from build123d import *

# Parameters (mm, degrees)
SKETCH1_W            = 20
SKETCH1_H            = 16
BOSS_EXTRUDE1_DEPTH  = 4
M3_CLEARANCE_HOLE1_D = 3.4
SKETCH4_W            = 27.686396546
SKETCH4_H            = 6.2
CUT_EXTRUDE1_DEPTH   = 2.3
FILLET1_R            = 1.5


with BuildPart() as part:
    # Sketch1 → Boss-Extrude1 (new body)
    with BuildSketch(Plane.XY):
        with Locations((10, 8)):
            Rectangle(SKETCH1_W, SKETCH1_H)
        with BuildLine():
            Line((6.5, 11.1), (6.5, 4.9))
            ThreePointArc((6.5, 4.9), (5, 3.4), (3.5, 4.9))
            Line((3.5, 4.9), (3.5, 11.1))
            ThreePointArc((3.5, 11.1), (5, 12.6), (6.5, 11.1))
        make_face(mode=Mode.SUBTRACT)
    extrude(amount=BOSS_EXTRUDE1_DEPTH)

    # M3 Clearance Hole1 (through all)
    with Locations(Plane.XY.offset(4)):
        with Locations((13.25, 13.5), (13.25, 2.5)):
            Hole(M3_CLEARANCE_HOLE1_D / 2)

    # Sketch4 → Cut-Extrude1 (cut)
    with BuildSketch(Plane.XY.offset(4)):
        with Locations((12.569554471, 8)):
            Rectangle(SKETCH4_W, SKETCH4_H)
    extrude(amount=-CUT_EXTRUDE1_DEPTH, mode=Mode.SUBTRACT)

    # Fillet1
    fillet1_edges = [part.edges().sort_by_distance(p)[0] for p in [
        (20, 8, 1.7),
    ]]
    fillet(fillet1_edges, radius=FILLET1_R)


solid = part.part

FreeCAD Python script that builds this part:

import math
import FreeCAD as App
import Part
import Sketcher
from FreeCAD import Vector
Q = App.Units.Quantity


def edges_at(feature, points):
    """Names of the edges that pass closest to the given points."""
    edges = feature.Shape.Edges
    near = lambda p: min(range(len(edges)), key=lambda i: edges[i].distToShape(Part.Vertex(*p))[0])
    return sorted({f"Edge{near(p) + 1}" for p in points})

doc = App.newDocument("Part")
params = doc.addObject("Spreadsheet::Sheet", "Params")
for row, (alias, value) in enumerate([
    ("sketch1_radius", "1.5 mm"),
    ("sketch1_width", "20 mm"),
    ("sketch1_height", "16 mm"),
    ("sketch1_height2", "6.2 mm"),
    ("pad1_length", "4 mm"),
    ("sketch2_diameter", "3.4 mm"),
    ("hole_diameter", "3.4 mm"),
    ("sketch3_height", "6.2 mm"),
    ("pocket1_length", "2.3 mm"),
    ("fillet_radius", "1.5 mm"),
], start=1):
    params.set(f"A{row}", alias)
    params.set(f"B{row}", "=" + value)
    params.setAlias(f"B{row}", alias)

body = doc.addObject("PartDesign::Body", "Body")

# Sketch on XY plane
sketch1 = body.newObject("Sketcher::SketchObject", "Sketch")
sketch1.AttachmentSupport = (doc.getObject("XY_Plane"), [""])
sketch1.MapMode = "FlatFace"
sketch1.addGeometry(Part.LineSegment(Vector(0, 16, 0), Vector(0, 0, 0)), False)
sketch1.addGeometry(Part.LineSegment(Vector(0, 0, 0), Vector(20, 0, 0)), False)
sketch1.addGeometry(Part.LineSegment(Vector(20, 0, 0), Vector(20, 16, 0)), False)
sketch1.addGeometry(Part.LineSegment(Vector(20, 16, 0), Vector(0, 16, 0)), False)
sketch1.addGeometry(Part.ArcOfCircle(Part.Circle(Vector(5, 11.1, 0), Vector(0, 0, 1), 1.5), math.radians(0), math.radians(180)), False)
sketch1.addGeometry(Part.LineSegment(Vector(6.5, 11.1, 0), Vector(6.5, 4.9, 0)), False)
sketch1.addGeometry(Part.ArcOfCircle(Part.Circle(Vector(5, 4.9, 0), Vector(0, 0, 1), 1.5), math.radians(180), math.radians(360)), False)
sketch1.addGeometry(Part.LineSegment(Vector(3.5, 4.9, 0), Vector(3.5, 11.1, 0)), False)
sketch1.addConstraint(Sketcher.Constraint("Coincident", 0, 2, 1, 1))
sketch1.addConstraint(Sketcher.Constraint("Coincident", 1, 2, 2, 1))
sketch1.addConstraint(Sketcher.Constraint("Coincident", 2, 2, 3, 1))
sketch1.addConstraint(Sketcher.Constraint("Coincident", 3, 2, 0, 1))
sketch1.addConstraint(Sketcher.Constraint("Tangent", 4, 1, 5, 1))
sketch1.addConstraint(Sketcher.Constraint("Tangent", 5, 2, 6, 2))
sketch1.addConstraint(Sketcher.Constraint("Tangent", 6, 1, 7, 1))
sketch1.addConstraint(Sketcher.Constraint("Tangent", 7, 2, 4, 2))
sketch1.addConstraint(Sketcher.Constraint("Vertical", 0))
sketch1.addConstraint(Sketcher.Constraint("Horizontal", 1))
sketch1.addConstraint(Sketcher.Constraint("Vertical", 2))
sketch1.addConstraint(Sketcher.Constraint("Horizontal", 3))
sketch1.addConstraint(Sketcher.Constraint("Vertical", 5))
sketch1.addConstraint(Sketcher.Constraint("Vertical", 7))
sketch1.addConstraint(Sketcher.Constraint("Coincident", 0, 2, -1, 1))
sketch1.addConstraint(Sketcher.Constraint("Radius", 4, Q("1.5 mm")))
sketch1.addConstraint(Sketcher.Constraint("DistanceX", 1, 1, 1, 2, Q("20 mm")))
sketch1.addConstraint(Sketcher.Constraint("DistanceY", 0, 2, 0, 1, Q("16 mm")))
sketch1.addConstraint(Sketcher.Constraint("DistanceY", 5, 2, 5, 1, Q("6.2 mm")))
sketch1.addConstraint(Sketcher.Constraint("DistanceX", -1, 1, 4, 3, Q("5 mm")))
sketch1.addConstraint(Sketcher.Constraint("DistanceY", -1, 1, 4, 3, Q("11.1 mm")))
sketch1.setExpression("Constraints[15]", "Params.sketch1_radius")
sketch1.setExpression("Constraints[16]", "Params.sketch1_width")
sketch1.setExpression("Constraints[17]", "Params.sketch1_height")
sketch1.setExpression("Constraints[18]", "Params.sketch1_height2")
pad1 = body.newObject("PartDesign::Pad", "Pad")
pad1.Profile = sketch1
pad1.setExpression("Length", "Params.pad1_length")

# Sketch on XY plane
sketch2 = body.newObject("Sketcher::SketchObject", "Sketch001")
sketch2.AttachmentSupport = (doc.getObject("XY_Plane"), [""])
sketch2.MapMode = "FlatFace"
sketch2.AttachmentOffset = App.Placement(Vector(0, 0, 4), App.Rotation())
sketch2.addGeometry(Part.Circle(Vector(13.2, 13.5, 0), Vector(0, 0, 1), 1.7), False)
sketch2.addGeometry(Part.Circle(Vector(13.2, 2.5, 0), Vector(0, 0, 1), 1.7), False)
sketch2.addConstraint(Sketcher.Constraint("Equal", 0, 1))
sketch2.addConstraint(Sketcher.Constraint("Vertical", 0, 3, 1, 3))
sketch2.addConstraint(Sketcher.Constraint("Diameter", 0, Q("3.4 mm")))
sketch2.addConstraint(Sketcher.Constraint("DistanceY", 1, 3, 0, 3, Q("11 mm")))
sketch2.addConstraint(Sketcher.Constraint("DistanceY", -1, 1, 0, 3, Q("13.5 mm")))
sketch2.addConstraint(Sketcher.Constraint("DistanceX", -1, 1, 0, 3, Q("13.25 mm")))
sketch2.setExpression("Constraints[2]", "Params.sketch2_diameter")
doc.recompute()
hole = body.newObject("PartDesign::Hole", "Hole")
hole.Profile = sketch2
hole.ThreadType = "None"
hole.setExpression("Diameter", "Params.hole_diameter")
hole.DepthType = "ThroughAll"

# Sketch on XY plane
sketch3 = body.newObject("Sketcher::SketchObject", "Sketch002")
sketch3.AttachmentSupport = (doc.getObject("XY_Plane"), [""])
sketch3.MapMode = "FlatFace"
sketch3.AttachmentOffset = App.Placement(Vector(0, 0, 4), App.Rotation())
sketch3.addGeometry(Part.LineSegment(Vector(-1, 11, 0), Vector(-1, 5, 0)), False)
sketch3.addGeometry(Part.LineSegment(Vector(-1, 5, 0), Vector(26, 5, 0)), False)
sketch3.addGeometry(Part.LineSegment(Vector(26, 5, 0), Vector(26, 11, 0)), False)
sketch3.addGeometry(Part.LineSegment(Vector(26, 11, 0), Vector(-1, 11, 0)), False)
sketch3.addConstraint(Sketcher.Constraint("Coincident", 0, 2, 1, 1))
sketch3.addConstraint(Sketcher.Constraint("Coincident", 1, 2, 2, 1))
sketch3.addConstraint(Sketcher.Constraint("Coincident", 2, 2, 3, 1))
sketch3.addConstraint(Sketcher.Constraint("Coincident", 3, 2, 0, 1))
sketch3.addConstraint(Sketcher.Constraint("Vertical", 0))
sketch3.addConstraint(Sketcher.Constraint("Horizontal", 1))
sketch3.addConstraint(Sketcher.Constraint("Vertical", 2))
sketch3.addConstraint(Sketcher.Constraint("Horizontal", 3))
sketch3.addConstraint(Sketcher.Constraint("DistanceY", 0, 2, 0, 1, Q("6.2 mm")))
sketch3.addConstraint(Sketcher.Constraint("DistanceY", -1, 1, 0, 2, Q("4.9 mm")))
sketch3.addConstraint(Sketcher.Constraint("DistanceX", 1, 1, 1, 2, Q("27.686397 mm")))
sketch3.addConstraint(Sketcher.Constraint("DistanceX", 0, 2, -1, 1, Q("1.273644 mm")))
sketch3.setExpression("Constraints[8]", "Params.sketch3_height")
pocket1 = body.newObject("PartDesign::Pocket", "Pocket")
pocket1.Profile = sketch3
pocket1.setExpression("Length", "Params.pocket1_length")
doc.recompute()

fillet = body.newObject("PartDesign::Fillet", "Fillet")
fillet.Base = (pocket1, edges_at(pocket1, [(20, 8, 1.7)]))
fillet.setExpression("Radius", "Params.fillet_radius")

doc.recompute()
